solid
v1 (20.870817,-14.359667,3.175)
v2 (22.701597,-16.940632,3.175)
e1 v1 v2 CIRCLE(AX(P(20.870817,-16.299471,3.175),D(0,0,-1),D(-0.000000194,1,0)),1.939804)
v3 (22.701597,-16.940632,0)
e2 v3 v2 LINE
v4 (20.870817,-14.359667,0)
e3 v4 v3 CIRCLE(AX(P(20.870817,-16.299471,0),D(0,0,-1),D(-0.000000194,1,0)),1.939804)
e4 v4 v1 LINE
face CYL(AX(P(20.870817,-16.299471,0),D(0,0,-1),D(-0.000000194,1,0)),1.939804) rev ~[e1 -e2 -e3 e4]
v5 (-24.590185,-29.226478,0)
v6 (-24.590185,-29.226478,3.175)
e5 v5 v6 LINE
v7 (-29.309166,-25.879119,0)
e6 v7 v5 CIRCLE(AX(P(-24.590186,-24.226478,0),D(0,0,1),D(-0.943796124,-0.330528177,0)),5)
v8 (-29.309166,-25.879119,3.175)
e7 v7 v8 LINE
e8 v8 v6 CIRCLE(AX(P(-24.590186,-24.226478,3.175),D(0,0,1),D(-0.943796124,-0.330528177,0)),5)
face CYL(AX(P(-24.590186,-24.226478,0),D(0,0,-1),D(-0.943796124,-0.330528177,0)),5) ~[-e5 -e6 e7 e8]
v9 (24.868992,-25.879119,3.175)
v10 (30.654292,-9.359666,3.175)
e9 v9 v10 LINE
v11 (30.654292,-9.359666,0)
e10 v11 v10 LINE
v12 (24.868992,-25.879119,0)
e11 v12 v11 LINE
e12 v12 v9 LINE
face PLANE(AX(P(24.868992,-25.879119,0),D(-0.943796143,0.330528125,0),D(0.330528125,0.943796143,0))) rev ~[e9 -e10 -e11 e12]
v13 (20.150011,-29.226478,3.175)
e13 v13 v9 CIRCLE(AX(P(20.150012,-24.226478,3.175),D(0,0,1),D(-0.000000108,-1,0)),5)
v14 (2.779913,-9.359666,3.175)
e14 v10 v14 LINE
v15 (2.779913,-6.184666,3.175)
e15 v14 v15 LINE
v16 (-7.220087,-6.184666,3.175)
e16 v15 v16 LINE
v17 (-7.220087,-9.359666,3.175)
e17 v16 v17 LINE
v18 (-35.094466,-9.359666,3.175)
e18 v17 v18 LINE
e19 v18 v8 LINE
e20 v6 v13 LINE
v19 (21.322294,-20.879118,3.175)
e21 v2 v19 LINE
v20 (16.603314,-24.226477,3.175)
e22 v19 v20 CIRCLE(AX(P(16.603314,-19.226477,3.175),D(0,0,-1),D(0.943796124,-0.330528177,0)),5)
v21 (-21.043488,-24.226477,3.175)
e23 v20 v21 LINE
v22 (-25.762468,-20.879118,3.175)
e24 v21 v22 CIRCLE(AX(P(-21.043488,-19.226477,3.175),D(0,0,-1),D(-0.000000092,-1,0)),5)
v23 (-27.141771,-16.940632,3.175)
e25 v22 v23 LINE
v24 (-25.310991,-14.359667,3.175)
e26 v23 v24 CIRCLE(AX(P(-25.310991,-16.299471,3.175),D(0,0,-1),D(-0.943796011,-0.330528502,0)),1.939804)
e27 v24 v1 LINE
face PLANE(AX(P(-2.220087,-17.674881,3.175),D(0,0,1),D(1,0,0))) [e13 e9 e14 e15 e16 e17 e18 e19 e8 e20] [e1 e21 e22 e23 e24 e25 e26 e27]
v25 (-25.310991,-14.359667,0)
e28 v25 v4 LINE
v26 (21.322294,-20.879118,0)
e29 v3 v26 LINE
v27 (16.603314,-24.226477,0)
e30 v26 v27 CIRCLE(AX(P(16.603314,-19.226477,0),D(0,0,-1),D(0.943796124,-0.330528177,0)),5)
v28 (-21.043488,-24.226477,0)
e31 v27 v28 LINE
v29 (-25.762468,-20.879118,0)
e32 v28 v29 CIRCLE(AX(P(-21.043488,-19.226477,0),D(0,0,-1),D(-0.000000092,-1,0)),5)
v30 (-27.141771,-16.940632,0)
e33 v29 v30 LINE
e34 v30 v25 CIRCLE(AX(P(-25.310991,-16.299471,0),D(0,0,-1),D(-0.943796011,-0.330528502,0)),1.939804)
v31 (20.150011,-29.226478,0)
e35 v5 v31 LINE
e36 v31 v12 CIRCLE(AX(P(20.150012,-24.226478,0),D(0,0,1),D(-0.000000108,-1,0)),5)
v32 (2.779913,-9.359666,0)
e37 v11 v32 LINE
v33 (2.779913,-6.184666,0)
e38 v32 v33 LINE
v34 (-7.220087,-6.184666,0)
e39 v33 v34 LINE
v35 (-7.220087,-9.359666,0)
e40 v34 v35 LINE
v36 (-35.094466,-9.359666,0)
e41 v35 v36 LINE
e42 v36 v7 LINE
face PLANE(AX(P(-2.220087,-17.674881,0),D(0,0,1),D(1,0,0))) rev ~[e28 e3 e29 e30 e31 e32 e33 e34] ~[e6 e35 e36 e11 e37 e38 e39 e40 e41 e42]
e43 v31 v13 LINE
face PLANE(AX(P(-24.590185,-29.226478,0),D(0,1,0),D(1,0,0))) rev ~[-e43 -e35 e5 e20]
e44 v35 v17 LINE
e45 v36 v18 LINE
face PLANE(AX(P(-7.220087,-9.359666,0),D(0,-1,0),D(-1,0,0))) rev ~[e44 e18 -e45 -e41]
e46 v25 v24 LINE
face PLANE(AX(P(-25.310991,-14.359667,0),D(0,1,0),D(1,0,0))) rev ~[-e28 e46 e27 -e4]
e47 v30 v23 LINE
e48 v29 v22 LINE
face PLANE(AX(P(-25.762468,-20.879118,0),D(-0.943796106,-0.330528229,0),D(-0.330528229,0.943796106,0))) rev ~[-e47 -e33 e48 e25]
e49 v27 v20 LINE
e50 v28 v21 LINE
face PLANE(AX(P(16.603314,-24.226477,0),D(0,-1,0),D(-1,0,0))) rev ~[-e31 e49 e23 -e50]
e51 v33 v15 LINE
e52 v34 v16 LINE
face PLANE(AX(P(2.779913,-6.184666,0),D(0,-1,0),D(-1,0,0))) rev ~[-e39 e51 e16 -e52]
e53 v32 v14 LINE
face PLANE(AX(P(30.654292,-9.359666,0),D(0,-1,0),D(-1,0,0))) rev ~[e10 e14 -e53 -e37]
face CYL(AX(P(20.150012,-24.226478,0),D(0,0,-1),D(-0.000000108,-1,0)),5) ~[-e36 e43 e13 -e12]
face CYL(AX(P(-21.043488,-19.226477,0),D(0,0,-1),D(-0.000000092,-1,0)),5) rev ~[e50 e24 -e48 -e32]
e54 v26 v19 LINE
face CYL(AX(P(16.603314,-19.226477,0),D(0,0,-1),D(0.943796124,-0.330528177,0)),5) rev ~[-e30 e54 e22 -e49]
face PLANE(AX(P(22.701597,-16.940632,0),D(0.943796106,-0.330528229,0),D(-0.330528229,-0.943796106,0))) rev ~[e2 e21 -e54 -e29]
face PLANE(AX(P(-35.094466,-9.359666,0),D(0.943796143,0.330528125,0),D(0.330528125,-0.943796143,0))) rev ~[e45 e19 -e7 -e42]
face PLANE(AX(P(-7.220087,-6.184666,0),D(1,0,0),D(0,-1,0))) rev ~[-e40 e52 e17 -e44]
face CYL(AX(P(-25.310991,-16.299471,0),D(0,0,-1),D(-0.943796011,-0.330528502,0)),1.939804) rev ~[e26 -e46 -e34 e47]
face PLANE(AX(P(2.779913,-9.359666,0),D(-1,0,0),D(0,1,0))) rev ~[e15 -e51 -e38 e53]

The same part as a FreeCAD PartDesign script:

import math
import FreeCAD as App
import Part
import Sketcher

V = App.Vector
Q = App.Units.Quantity

doc = App.newDocument("Part")
body = doc.addObject("PartDesign::Body", "Body")

# Sketch on XY plane
sketch1 = body.newObject("Sketcher::SketchObject", "Sketch")
sketch1.AttachmentSupport = (doc.getObject("XY_Plane"), [""])
sketch1.MapMode = "FlatFace"
sketch1.addGeometry(Part.LineSegment(V(-7.2, -9.4, 0), V(-35.1, -9.4, 0)), False)
sketch1.addGeometry(Part.LineSegment(V(-35.1, -9.4, 0), V(-29.3, -25.9, 0)), False)
sketch1.addGeometry(Part.ArcOfCircle(Part.Circle(V(-24.6, -24.2, 0), V(0, 0, 1), 5), math.radians(-161), math.radians(-90)), False)
sketch1.addGeometry(Part.LineSegment(V(-24.6, -29.2, 0), V(20.2, -29.2, 0)), False)
sketch1.addGeometry(Part.ArcOfCircle(Part.Circle(V(20.2, -24.2, 0), V(0, 0, 1), 5), math.radians(-90), math.radians(-19)), False)
sketch1.addGeometry(Part.LineSegment(V(24.9, -25.9, 0), V(30.7, -9.4, 0)), False)
sketch1.addGeometry(Part.LineSegment(V(30.7, -9.4, 0), V(2.8, -9.4, 0)), False)
sketch1.addGeometry(Part.LineSegment(V(2.8, -9.4, 0), V(2.8, -6.2, 0)), False)
sketch1.addGeometry(Part.LineSegment(V(2.8, -6.2, 0), V(-7.2, -6.2, 0)), False)
sketch1.addGeometry(Part.LineSegment(V(-7.2, -6.2, 0), V(-7.2, -9.4, 0)), False)
sketch1.addGeometry(Part.LineSegment(V(-25.3, -14.4, 0), V(20.9, -14.4, 0)), False)
sketch1.addGeometry(Part.ArcOfCircle(Part.Circle(V(20.9, -16.3, 0), V(0, 0, 1), 1.9), math.radians(-19), math.radians(90)), False)
sketch1.addGeometry(Part.LineSegment(V(22.7, -16.9, 0), V(21.3, -20.9, 0)), False)
sketch1.addGeometry(Part.ArcOfCircle(Part.Circle(V(16.6, -19.2, 0), V(0, 0, 1), 5), math.radians(-90), math.radians(-19)), False)
sketch1.addGeometry(Part.LineSegment(V(16.6, -24.2, 0), V(-21, -24.2, 0)), False)
sketch1.addGeometry(Part.ArcOfCircle(Part.Circle(V(-21, -19.2, 0), V(0, 0, 1), 5), math.radians(-161), math.radians(-90)), False)
sketch1.addGeometry(Part.LineSegment(V(-25.8, -20.9, 0), V(-27.1, -16.9, 0)), False)
sketch1.addGeometry(Part.ArcOfCircle(Part.Circle(V(-25.3, -16.3, 0), V(0, 0, 1), 1.9), math.radians(90), math.radians(199)), False)
sketch1.addConstraint(Sketcher.Constraint("Coincident", 0, 2, 1, 1))
sketch1.addConstraint(Sketcher.Constraint("Tangent", 1, 2, 2, 1))
sketch1.addConstraint(Sketcher.Constraint("Tangent", 2, 2, 3, 1))
sketch1.addConstraint(Sketcher.Constraint("Tangent", 3, 2, 4, 1))
sketch1.addConstraint(Sketcher.Constraint("Tangent", 4, 2, 5, 1))
sketch1.addConstraint(Sketcher.Constraint("Coincident", 5, 2, 6, 1))
sketch1.addConstraint(Sketcher.Constraint("Coincident", 6, 2, 7, 1))
sketch1.addConstraint(Sketcher.Constraint("Coincident", 7, 2, 8, 1))
sketch1.addConstraint(Sketcher.Constraint("Coincident", 8, 2, 9, 1))
sketch1.addConstraint(Sketcher.Constraint("Coincident", 9, 2, 0, 1))
sketch1.addConstraint(Sketcher.Constraint("Tangent", 10, 2, 11, 2))
sketch1.addConstraint(Sketcher.Constraint("Tangent", 11, 1, 12, 1))
sketch1.addConstraint(Sketcher.Constraint("Tangent", 12, 2, 13, 2))
sketch1.addConstraint(Sketcher.Constraint("Tangent", 13, 1, 14, 1))
sketch1.addConstraint(Sketcher.Constraint("Tangent", 14, 2, 15, 2))
sketch1.addConstraint(Sketcher.Constraint("Tangent", 15, 1, 16, 1))
sketch1.addConstraint(Sketcher.Constraint("Tangent", 16, 2, 17, 2))
sketch1.addConstraint(Sketcher.Constraint("Tangent", 17, 1, 10, 1))
sketch1.addConstraint(Sketcher.Constraint("Horizontal", 0))
sketch1.addConstraint(Sketcher.Constraint("Horizontal", 3))
sketch1.addConstraint(Sketcher.Constraint("Horizontal", 6))
sketch1.addConstraint(Sketcher.Constraint("Vertical", 7))
sketch1.addConstraint(Sketcher.Constraint("Horizontal", 8))
sketch1.addConstraint(Sketcher.Constraint("Vertical", 9))
sketch1.addConstraint(Sketcher.Constraint("Horizontal", 10))
sketch1.addConstraint(Sketcher.Constraint("Horizontal", 14))
sketch1.addConstraint(Sketcher.Constraint("Equal", 2, 4))
sketch1.addConstraint(Sketcher.Constraint("Equal", 4, 13))
sketch1.addConstraint(Sketcher.Constraint("Equal", 13, 15))
sketch1.addConstraint(Sketcher.Constraint("Equal", 11, 17))
sketch1.addConstraint(Sketcher.Constraint("Parallel", 5, 12))
sketch1.addConstraint(Sketcher.Constraint("Parallel", 1, 16))
sketch1.addConstraint(Sketcher.Constraint("Horizontal", 1, 2, 4, 2))
sketch1.addConstraint(Sketcher.Constraint("Horizontal", 0, 2, 5, 2))
sketch1.addConstraint(Sketcher.Constraint("Horizontal", 4, 3, 13, 1))
sketch1.addConstraint(Sketcher.Constraint("Equal", 0, 6))
sketch1.addConstraint(Sketcher.Constraint("Radius", 2, Q("5 mm")))
sketch1.addConstraint(Sketcher.Constraint("DistanceX", 8, 2, 8, 1, Q("10 mm")))
sketch1.addConstraint(Sketcher.Constraint("DistanceY", 10, 2, 5, 2, Q("5.000001 mm")))
sketch1.addConstraint(Sketcher.Constraint("DistanceY", 7, 1, 7, 2, Q("3.175 mm")))
sketch1.addConstraint(Sketcher.Constraint("Radius", 11, Q("1.939804 mm")))
sketch1.addConstraint(Sketcher.Constraint("Distance", 1, Q("17.5032 mm")))
sketch1.addConstraint(Sketcher.Constraint("DistanceX", 0, 2, 0, 1, Q("27.874379 mm")))
sketch1.addConstraint(Sketcher.Constraint("DistanceX", 10, 1, 10, 2, Q("46.181808 mm")))
sketch1.addConstraint(Sketcher.Constraint("DistanceX", 13, 3, 4, 3, Q("3.546698 mm")))
sketch1.addConstraint(Sketcher.Constraint("DistanceX", 2, 3, 13, 3, Q("41.193499 mm")))
sketch1.addConstraint(Sketcher.Constraint("DistanceY", 2, 3, -1, 1, Q("24.226478 mm")))
sketch1.addConstraint(Sketcher.Constraint("DistanceX", -1, 1, 4, 3, Q("20.150012 mm")))
pad1 = body.newObject("PartDesign::Pad", "Pad")
pad1.Profile = sketch1
pad1.Length = 3.175

doc.recompute()
